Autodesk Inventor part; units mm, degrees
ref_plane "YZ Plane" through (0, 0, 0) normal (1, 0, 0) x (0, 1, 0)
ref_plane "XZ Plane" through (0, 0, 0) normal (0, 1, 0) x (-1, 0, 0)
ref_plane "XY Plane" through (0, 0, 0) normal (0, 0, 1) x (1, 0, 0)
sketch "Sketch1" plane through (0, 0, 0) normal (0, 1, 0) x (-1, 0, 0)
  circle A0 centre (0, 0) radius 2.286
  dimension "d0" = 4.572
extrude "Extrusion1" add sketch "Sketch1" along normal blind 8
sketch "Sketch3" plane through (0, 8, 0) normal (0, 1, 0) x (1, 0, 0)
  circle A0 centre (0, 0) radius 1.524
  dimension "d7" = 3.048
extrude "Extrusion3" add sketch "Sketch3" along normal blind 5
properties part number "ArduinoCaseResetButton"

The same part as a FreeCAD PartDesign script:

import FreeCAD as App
import Part
import Sketcher
Q = App.Units.Quantity

doc = App.newDocument("Part")
body = doc.addObject("PartDesign::Body", "Body")

# Sketch on XZ plane
sketch1 = body.newObject("Sketcher::SketchObject", "Sketch")
sketch1.AttachmentSupport = (doc.getObject("XZ_Plane"), [""])
sketch1.MapMode = "FlatFace"
sketch1.addGeometry(Part.Circle(App.Vector(0, 0, 0), App.Vector(0, 0, 1), 2.286), False)
sketch1.addConstraint([
    Sketcher.Constraint("Coincident", 0, 3, -1, 1),
    Sketcher.Constraint("Diameter", 0, Q("4.572 mm")),
])
pad1 = body.newObject("PartDesign::Pad", "Pad")
pad1.Profile = sketch1
pad1.Length = 8
pad1.Reversed = True

# Sketch on XZ plane
sketch2 = body.newObject("Sketcher::SketchObject", "Sketch001")
sketch2.AttachmentSupport = (doc.getObject("XZ_Plane"), [""])
sketch2.MapMode = "FlatFace"
sketch2.AttachmentOffset = App.Placement(App.Vector(0, 0, -8), App.Rotation())
sketch2.addGeometry(Part.Circle(App.Vector(0, 0, 0), App.Vector(0, 0, 1), 1.524), False)
sketch2.addConstraint([
    Sketcher.Constraint("Coincident", 0, 3, -1, 1),
    Sketcher.Constraint("Diameter", 0, Q("3.048 mm")),
])
pad2 = body.newObject("PartDesign::Pad", "Pad001")
pad2.Profile = sketch2
pad2.Length = 5
pad2.Reversed = True

doc.recompute()
